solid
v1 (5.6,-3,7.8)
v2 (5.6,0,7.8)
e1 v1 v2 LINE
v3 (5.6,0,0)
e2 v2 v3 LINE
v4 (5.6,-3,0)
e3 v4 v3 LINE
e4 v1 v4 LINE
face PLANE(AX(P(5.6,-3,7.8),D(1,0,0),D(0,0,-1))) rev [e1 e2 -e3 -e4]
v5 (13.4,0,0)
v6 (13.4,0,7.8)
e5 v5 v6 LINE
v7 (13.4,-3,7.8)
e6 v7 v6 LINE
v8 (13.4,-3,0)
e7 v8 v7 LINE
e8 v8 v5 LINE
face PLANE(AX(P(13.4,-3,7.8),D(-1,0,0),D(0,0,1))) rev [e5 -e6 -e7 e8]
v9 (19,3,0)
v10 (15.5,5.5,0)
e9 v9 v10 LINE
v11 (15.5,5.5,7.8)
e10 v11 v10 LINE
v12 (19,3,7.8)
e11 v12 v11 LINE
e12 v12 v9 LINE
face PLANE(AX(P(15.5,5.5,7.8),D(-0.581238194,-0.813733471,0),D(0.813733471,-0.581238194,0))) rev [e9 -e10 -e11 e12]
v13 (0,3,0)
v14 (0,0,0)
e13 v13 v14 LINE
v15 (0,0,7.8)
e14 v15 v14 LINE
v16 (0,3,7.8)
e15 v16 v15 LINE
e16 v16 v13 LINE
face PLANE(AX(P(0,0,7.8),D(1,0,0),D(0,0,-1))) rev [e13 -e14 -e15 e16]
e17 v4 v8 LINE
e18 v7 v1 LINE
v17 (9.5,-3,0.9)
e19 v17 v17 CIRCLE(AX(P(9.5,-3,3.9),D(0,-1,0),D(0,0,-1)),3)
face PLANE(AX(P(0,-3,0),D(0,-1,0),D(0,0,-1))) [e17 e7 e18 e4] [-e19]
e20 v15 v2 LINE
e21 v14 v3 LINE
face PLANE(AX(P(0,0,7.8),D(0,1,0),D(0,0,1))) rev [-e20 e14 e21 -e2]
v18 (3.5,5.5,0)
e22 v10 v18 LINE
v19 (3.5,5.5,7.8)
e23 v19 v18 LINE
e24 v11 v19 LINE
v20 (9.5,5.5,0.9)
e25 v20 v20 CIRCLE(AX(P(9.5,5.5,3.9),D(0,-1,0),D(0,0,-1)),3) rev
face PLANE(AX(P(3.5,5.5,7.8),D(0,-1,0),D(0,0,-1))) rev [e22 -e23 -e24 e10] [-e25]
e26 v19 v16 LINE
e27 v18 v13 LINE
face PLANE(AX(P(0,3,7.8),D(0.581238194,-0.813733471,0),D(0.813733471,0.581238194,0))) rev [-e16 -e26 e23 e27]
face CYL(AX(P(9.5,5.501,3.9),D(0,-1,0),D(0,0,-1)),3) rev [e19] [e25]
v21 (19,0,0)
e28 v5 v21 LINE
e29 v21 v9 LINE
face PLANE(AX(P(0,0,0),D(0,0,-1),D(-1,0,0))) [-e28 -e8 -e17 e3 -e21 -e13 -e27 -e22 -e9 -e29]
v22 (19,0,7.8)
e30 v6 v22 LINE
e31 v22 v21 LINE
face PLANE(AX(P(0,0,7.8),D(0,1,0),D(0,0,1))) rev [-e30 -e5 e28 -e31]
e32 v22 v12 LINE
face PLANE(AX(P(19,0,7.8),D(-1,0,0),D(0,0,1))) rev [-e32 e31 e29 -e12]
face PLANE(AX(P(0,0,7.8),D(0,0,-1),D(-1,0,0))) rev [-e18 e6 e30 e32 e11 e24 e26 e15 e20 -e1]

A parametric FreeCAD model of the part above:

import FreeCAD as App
import Part
import Sketcher
Q = App.Units.Quantity


def add_polygon(sketch, points):
    """Adds a closed chain of lines whose ends are joined by coincident constraints."""
    first, n = sketch.GeometryCount, len(points)
    for a, b in zip(points, points[1:] + points[:1]):
        sketch.addGeometry(Part.LineSegment(App.Vector(*a, 0), App.Vector(*b, 0)), False)
    for i in range(n):
        sketch.addConstraint(Sketcher.Constraint("Coincident", first + i, 2, first + (i + 1) % n, 1))

doc = App.newDocument("Part")
body = doc.addObject("PartDesign::Body", "Body")

sketch1 = body.newObject("Sketcher::SketchObject", "Sketch")
sketch1.AttachmentSupport = (doc.getObject("XY_Plane"), [""])
sketch1.MapMode = "FlatFace"
add_polygon(sketch1, [(0, 0), (19, 0), (19, 3), (15.5, 5.5), (3.5, 5.5), (0, 3)])
sketch1.addConstraint([
    Sketcher.Constraint("Horizontal", 0),
    Sketcher.Constraint("Vertical", 1),
    Sketcher.Constraint("Horizontal", 3),
    Sketcher.Constraint("Vertical", 5),
    Sketcher.Constraint("Coincident", 5, 2, -1, 1),
    Sketcher.Constraint("Horizontal", 1, 2, 4, 2),
    Sketcher.Constraint("Equal", 2, 4),
    Sketcher.Constraint("DistanceX", 0, 1, 0, 2, Q("19 mm")),
    Sketcher.Constraint("DistanceX", 3, 2, 3, 1, Q("12 mm")),
    Sketcher.Constraint("DistanceY", 1, 1, 1, 2, Q("3 mm")),
    Sketcher.Constraint("DistanceY", -1, 1, 2, 2, Q("5.5 mm")),
])
pad1 = body.newObject("PartDesign::Pad", "Pad")
pad1.Profile = sketch1
pad1.Length = 7.8

sketch2 = body.newObject("Sketcher::SketchObject", "Sketch001")
sketch2.AttachmentSupport = (doc.getObject("XZ_Plane"), [""])
sketch2.MapMode = "FlatFace"
add_polygon(sketch2, [(13, 0), (13, 8), (6, 8), (6, 0)])
sketch2.addConstraint([
    Sketcher.Constraint("Vertical", 0),
    Sketcher.Constraint("Horizontal", 1),
    Sketcher.Constraint("Vertical", 2),
    Sketcher.Constraint("Horizontal", 3),
    Sketcher.Constraint("PointOnObject", 2, 2, -1),
    Sketcher.Constraint("Equal", 3, 0),
    Sketcher.Constraint("DistanceX", 1, 2, 1, 1, Q("7.8 mm")),
    Sketcher.Constraint("DistanceX", -1, 1, 0, 2, Q("13.4 mm")),
])
pad2 = body.newObject("PartDesign::Pad", "Pad001")
pad2.Profile = sketch2
pad2.Length = 3

sketch3 = body.newObject("Sketcher::SketchObject", "Sketch002")
sketch3.AttachmentSupport = (doc.getObject("XZ_Plane"), [""])
sketch3.MapMode = "FlatFace"
sketch3.AttachmentOffset = App.Placement(App.Vector(0, 0, 3), App.Rotation())
sketch3.addGeometry(Part.Circle(App.Vector(9.5, 3.9, 0), App.Vector(0, 0, 1), 3), False)
sketch3.addConstraint([
    Sketcher.Constraint("Diameter", 0, Q("6 mm")),
    Sketcher.Constraint("DistanceX", -1, 1, 0, 3, Q("9.5 mm")),
    Sketcher.Constraint("DistanceY", -1, 1, 0, 3, Q("3.9 mm")),
])
pocket1 = body.newObject("PartDesign::Pocket", "Pocket")
pocket1.Profile = sketch3
pocket1.Type = "UpToFirst"

doc.recompute()
